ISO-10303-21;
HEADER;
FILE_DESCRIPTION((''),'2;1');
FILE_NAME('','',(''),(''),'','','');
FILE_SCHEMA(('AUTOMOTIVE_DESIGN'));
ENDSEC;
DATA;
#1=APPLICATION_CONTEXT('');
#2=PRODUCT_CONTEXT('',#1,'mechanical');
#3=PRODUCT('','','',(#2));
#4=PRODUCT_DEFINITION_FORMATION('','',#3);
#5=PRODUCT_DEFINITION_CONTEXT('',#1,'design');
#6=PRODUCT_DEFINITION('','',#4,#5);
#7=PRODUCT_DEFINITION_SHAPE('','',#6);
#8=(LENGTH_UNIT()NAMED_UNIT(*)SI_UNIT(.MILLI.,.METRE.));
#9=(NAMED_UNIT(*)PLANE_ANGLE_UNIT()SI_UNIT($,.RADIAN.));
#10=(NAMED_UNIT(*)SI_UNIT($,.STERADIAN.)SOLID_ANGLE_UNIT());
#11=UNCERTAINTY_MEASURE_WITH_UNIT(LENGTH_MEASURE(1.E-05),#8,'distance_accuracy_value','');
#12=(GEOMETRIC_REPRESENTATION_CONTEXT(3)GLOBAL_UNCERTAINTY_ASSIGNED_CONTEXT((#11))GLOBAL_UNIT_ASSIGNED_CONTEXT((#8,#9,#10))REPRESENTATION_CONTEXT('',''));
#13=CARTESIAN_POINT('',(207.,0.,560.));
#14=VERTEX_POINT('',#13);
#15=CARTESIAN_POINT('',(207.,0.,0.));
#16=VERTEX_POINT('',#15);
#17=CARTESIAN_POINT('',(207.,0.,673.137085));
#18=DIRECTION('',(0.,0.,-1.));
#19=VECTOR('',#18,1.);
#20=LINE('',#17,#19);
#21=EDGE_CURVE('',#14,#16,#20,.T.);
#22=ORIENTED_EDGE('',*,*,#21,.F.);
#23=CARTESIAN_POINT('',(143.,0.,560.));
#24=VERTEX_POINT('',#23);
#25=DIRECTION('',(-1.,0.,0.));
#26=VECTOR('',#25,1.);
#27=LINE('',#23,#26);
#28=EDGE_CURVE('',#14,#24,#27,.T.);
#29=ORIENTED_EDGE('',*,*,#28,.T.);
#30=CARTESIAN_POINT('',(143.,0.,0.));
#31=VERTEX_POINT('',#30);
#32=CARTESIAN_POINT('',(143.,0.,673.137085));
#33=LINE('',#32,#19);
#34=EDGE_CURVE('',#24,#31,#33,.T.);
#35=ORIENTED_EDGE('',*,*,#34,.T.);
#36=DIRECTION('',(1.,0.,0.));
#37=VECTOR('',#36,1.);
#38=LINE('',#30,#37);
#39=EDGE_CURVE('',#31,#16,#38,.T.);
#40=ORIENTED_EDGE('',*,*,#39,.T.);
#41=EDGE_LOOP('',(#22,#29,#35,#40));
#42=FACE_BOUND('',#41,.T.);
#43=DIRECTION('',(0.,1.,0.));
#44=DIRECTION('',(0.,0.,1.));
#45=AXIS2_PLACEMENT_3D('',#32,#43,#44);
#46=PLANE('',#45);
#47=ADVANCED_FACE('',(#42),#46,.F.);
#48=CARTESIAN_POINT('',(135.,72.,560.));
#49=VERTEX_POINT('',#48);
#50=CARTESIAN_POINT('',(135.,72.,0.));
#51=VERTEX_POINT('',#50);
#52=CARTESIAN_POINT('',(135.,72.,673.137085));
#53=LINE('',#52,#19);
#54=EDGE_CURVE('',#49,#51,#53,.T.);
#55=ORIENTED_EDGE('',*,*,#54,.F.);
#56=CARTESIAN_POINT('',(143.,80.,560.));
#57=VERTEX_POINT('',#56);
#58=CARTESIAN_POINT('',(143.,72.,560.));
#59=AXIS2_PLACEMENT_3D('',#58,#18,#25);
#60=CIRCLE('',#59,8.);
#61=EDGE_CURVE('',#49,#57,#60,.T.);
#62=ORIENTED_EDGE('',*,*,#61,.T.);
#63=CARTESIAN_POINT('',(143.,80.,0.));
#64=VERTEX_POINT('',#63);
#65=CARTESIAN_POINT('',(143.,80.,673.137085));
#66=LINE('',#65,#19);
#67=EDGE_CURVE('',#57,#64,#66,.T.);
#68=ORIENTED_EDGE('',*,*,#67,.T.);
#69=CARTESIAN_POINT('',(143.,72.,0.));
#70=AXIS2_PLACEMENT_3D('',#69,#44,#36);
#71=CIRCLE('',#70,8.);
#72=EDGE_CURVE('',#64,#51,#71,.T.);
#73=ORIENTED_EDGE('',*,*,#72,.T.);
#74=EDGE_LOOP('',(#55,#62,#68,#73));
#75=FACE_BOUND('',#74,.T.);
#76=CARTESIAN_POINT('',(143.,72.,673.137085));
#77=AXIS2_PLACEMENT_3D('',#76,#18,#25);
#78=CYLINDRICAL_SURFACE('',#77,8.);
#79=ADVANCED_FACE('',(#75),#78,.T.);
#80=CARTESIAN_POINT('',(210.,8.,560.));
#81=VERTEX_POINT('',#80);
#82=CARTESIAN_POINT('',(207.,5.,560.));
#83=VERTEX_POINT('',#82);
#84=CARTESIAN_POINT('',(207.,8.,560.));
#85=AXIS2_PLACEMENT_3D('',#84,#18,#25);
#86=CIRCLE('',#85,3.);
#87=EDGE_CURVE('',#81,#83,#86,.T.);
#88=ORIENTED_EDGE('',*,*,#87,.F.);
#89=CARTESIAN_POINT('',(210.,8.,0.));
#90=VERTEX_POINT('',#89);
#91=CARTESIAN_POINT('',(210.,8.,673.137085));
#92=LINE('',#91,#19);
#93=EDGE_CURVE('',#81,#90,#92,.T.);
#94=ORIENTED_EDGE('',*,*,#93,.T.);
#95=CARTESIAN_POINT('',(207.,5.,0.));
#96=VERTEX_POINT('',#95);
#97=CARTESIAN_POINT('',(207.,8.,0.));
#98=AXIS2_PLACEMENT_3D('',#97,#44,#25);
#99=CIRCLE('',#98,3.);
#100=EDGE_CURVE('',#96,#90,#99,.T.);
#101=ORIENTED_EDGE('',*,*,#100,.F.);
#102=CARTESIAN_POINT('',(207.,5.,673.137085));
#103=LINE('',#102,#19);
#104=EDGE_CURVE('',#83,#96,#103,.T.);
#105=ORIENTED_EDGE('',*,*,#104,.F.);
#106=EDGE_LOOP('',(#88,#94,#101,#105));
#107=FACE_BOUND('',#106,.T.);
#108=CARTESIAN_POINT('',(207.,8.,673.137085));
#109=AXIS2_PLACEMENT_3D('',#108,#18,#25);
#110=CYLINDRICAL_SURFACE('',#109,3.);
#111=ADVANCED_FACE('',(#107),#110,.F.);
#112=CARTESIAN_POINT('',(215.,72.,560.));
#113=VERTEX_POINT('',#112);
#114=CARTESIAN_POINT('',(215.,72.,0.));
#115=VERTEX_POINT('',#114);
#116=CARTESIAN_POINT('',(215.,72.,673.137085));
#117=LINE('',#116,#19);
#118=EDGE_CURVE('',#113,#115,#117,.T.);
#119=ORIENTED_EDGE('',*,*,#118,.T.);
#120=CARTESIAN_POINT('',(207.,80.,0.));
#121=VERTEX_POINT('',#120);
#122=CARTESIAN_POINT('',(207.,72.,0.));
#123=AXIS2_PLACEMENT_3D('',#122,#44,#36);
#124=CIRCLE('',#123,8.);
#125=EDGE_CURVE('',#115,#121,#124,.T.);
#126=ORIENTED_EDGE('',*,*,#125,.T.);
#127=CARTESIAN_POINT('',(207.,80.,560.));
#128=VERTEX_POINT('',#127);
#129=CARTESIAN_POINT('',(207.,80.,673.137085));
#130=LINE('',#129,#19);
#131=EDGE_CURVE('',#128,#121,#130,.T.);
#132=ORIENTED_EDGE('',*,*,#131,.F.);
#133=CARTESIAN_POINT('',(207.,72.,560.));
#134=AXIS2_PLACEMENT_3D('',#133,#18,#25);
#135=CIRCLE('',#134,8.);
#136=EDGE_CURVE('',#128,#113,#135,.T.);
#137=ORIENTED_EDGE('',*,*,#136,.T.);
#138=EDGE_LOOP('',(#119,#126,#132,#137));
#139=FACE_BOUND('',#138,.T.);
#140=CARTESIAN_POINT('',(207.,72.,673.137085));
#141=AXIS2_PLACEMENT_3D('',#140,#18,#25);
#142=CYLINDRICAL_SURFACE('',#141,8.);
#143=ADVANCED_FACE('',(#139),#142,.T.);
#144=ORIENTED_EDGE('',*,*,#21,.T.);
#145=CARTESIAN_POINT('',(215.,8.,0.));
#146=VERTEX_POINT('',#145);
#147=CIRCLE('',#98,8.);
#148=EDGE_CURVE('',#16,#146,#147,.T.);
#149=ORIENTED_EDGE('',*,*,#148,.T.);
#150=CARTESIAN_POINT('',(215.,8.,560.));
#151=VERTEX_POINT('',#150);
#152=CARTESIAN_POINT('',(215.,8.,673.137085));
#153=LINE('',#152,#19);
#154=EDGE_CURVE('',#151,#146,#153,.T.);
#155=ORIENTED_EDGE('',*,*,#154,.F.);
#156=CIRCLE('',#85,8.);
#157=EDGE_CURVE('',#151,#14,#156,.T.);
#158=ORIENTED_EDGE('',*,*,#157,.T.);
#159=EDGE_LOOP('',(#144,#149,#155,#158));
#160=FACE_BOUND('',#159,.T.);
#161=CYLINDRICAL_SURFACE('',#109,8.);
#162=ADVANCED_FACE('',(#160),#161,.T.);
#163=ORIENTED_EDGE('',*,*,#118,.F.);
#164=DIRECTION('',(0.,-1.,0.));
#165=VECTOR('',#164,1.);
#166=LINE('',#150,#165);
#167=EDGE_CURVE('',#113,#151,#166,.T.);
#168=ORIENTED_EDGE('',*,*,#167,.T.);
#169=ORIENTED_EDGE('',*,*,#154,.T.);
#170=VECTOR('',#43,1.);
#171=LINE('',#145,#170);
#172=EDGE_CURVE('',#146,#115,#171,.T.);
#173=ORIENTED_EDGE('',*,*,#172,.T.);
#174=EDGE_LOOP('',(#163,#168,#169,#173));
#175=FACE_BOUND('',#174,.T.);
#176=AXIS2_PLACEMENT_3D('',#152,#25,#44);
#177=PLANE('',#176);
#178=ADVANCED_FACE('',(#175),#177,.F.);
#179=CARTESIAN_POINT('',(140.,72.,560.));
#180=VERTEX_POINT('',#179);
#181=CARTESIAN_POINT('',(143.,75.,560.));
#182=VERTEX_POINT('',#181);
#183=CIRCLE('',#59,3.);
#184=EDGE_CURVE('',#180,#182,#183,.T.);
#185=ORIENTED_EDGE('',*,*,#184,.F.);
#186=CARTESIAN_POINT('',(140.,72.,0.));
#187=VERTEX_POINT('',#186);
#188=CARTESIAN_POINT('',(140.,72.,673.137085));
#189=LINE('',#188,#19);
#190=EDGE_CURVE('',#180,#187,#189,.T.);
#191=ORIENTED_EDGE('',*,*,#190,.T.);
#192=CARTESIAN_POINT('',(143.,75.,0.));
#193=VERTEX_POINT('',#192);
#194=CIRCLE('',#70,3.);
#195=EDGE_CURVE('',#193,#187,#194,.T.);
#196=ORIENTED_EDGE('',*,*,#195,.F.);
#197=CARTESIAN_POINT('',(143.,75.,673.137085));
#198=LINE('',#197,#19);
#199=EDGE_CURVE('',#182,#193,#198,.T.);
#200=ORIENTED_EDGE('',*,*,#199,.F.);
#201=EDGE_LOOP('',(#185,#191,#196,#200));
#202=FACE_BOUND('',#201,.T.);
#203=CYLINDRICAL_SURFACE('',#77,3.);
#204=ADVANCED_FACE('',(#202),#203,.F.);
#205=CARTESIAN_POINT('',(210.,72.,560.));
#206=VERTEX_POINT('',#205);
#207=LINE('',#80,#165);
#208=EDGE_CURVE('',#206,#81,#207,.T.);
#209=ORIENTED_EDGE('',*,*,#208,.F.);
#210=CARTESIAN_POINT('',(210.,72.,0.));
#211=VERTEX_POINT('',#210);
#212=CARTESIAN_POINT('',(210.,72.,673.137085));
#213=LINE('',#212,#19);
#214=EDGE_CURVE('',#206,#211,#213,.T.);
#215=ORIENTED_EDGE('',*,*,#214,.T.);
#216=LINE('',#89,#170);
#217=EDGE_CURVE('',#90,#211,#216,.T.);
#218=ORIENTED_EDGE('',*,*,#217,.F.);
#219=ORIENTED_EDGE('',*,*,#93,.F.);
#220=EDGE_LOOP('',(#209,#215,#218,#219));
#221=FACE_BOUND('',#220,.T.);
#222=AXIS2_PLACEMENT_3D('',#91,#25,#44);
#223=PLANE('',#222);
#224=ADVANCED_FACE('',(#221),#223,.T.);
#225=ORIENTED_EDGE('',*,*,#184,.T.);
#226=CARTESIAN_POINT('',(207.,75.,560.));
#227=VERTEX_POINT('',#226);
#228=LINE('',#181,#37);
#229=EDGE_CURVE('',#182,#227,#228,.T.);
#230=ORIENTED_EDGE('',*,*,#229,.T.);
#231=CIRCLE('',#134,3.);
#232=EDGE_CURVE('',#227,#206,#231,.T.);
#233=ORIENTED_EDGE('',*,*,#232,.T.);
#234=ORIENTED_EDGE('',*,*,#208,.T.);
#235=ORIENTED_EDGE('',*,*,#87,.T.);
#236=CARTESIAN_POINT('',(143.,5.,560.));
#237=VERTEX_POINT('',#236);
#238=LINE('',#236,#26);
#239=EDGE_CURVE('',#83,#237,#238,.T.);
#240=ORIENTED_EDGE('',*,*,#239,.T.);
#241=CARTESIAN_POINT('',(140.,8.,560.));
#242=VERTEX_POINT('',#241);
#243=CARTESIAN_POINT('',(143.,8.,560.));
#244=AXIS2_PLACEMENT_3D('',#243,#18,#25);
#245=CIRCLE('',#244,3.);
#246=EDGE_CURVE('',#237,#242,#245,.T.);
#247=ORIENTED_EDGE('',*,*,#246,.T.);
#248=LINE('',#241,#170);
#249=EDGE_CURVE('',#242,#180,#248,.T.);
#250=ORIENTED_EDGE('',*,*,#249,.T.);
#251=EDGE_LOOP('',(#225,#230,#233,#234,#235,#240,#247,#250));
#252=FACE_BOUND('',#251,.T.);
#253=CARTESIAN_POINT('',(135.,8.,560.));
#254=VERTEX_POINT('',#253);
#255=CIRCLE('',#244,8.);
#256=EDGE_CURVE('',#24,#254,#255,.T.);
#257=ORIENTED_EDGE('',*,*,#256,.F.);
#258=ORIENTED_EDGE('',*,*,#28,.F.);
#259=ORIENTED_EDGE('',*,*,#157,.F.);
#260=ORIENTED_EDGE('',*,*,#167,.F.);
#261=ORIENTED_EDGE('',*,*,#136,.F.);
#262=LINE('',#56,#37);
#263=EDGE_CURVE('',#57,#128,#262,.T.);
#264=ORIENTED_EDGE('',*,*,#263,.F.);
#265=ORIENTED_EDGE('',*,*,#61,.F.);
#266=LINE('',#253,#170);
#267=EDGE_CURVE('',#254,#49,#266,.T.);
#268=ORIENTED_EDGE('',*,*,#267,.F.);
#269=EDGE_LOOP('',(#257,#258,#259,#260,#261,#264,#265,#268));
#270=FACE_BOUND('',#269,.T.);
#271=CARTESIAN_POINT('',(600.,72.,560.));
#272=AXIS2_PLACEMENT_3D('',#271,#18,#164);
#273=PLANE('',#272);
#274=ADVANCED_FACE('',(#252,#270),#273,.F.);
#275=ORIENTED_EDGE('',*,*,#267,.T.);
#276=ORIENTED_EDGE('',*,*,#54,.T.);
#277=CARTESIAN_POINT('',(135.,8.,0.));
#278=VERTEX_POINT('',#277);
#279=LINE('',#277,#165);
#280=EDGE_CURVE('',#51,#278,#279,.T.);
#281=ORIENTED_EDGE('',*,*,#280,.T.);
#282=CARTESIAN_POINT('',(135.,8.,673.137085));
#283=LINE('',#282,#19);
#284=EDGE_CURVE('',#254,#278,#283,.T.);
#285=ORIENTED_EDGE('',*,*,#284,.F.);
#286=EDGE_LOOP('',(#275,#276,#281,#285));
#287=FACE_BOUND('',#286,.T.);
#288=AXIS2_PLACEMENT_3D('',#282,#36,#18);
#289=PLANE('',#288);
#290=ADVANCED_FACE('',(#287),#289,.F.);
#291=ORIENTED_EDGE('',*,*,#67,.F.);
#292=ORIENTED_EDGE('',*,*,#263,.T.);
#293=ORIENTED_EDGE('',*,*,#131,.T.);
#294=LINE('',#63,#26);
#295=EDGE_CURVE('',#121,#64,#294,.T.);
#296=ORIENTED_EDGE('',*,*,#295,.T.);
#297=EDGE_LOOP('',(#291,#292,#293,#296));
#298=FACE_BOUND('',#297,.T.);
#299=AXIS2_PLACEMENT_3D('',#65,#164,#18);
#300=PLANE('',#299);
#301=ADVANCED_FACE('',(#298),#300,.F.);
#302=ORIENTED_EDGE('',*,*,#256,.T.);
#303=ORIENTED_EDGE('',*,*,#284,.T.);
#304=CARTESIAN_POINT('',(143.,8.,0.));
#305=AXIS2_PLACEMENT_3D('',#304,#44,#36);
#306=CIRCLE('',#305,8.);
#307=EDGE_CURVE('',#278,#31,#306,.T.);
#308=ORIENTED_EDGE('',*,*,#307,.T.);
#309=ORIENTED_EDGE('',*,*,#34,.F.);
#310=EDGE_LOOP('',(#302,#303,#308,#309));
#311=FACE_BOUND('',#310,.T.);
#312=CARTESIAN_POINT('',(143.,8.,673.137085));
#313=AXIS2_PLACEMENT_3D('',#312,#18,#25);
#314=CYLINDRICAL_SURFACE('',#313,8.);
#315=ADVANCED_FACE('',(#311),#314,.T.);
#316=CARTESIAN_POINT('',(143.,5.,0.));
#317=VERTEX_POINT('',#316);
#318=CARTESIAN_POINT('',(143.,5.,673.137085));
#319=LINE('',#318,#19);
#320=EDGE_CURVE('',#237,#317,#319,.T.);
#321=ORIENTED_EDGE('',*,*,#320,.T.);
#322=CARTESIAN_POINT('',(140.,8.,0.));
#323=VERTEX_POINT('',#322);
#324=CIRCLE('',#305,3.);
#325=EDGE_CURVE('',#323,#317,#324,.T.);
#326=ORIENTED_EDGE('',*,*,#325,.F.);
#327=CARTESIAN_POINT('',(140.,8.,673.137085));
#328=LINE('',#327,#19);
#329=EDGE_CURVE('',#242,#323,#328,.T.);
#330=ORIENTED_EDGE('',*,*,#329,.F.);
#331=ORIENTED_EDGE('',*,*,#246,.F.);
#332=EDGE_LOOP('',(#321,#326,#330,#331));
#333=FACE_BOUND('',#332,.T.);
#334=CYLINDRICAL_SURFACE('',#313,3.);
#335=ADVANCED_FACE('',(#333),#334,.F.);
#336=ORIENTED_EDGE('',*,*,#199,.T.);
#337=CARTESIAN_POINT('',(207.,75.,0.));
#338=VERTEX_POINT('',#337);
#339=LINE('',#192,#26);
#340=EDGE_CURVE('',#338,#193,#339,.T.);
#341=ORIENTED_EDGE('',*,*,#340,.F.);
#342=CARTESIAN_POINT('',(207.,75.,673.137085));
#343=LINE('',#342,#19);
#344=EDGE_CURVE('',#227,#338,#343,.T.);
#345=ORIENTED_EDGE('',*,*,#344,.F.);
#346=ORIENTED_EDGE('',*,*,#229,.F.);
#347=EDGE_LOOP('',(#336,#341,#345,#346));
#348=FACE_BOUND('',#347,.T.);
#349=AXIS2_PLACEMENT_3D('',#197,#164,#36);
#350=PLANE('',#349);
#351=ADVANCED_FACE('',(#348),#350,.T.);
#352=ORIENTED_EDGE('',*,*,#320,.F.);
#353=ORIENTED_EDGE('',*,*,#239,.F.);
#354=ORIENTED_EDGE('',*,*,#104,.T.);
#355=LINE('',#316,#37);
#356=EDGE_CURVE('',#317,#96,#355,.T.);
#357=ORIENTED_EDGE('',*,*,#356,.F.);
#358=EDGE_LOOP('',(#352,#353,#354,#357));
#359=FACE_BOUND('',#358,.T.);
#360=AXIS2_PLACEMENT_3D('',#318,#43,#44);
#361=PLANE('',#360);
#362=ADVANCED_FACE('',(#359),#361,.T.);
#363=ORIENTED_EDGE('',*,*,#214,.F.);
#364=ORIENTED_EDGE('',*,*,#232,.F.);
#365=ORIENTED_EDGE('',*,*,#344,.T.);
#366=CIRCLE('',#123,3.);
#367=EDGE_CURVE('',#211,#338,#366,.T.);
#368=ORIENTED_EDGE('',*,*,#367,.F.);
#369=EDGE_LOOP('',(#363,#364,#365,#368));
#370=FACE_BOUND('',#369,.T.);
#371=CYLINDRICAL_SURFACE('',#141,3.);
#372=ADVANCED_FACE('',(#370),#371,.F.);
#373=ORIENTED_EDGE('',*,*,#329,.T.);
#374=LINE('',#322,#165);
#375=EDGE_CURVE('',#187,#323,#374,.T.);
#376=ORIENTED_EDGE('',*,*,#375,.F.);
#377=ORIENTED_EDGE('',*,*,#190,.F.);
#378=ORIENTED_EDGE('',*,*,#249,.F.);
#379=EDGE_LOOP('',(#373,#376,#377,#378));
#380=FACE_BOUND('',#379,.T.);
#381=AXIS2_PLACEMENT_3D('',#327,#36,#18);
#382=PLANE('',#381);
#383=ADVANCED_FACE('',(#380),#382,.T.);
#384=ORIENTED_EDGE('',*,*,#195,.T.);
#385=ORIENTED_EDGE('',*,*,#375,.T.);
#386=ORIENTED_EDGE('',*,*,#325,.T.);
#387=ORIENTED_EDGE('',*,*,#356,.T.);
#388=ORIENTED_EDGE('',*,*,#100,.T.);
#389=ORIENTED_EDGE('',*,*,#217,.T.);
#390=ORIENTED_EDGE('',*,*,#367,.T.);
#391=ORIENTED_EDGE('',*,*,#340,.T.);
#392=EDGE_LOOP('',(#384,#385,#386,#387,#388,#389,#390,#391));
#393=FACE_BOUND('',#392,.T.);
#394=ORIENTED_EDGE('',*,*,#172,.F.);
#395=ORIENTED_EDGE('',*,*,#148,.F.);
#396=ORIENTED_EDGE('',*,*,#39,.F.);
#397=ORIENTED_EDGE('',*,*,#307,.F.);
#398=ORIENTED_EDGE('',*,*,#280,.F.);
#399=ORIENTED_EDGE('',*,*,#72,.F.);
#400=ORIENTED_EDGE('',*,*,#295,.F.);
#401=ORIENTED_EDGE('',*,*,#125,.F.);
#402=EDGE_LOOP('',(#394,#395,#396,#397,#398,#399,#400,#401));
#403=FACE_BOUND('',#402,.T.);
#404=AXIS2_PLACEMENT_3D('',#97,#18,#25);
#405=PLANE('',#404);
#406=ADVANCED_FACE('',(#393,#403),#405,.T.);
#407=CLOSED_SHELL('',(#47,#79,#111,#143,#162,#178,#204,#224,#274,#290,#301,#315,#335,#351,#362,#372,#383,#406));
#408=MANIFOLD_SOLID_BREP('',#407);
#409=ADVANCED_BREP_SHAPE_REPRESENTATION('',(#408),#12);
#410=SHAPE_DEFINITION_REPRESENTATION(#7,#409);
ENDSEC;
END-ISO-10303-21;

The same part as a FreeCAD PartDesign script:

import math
import FreeCAD as App
import Part
import Sketcher

V = App.Vector

doc = App.newDocument("Part")
body = doc.addObject("PartDesign::Body", "Body")

# Sketch on XY plane
sketch1 = body.newObject("Sketcher::SketchObject", "Sketch")
sketch1.AttachmentSupport = (doc.getObject("XY_Plane"), [""])
sketch1.MapMode = "FlatFace"
sketch1.addGeometry(Part.LineSegment(V(143, 0, 0), V(207, 0, 0)), False)
sketch1.addGeometry(Part.ArcOfCircle(Part.Circle(V(207, 8, 0), V(0, 0, 1), 8), math.radians(-90), math.radians(0)), False)
sketch1.addGeometry(Part.LineSegment(V(215, 8, 0), V(215, 72, 0)), False)
sketch1.addGeometry(Part.ArcOfCircle(Part.Circle(V(207, 72, 0), V(0, 0, 1), 8), math.radians(0), math.radians(90)), False)
sketch1.addGeometry(Part.LineSegment(V(207, 80, 0), V(143, 80, 0)), False)
sketch1.addGeometry(Part.ArcOfCircle(Part.Circle(V(143, 72, 0), V(0, 0, 1), 8), math.radians(90), math.radians(180)), False)
sketch1.addGeometry(Part.LineSegment(V(135, 72, 0), V(135, 8, 0)), False)
sketch1.addGeometry(Part.ArcOfCircle(Part.Circle(V(143, 8, 0), V(0, 0, 1), 8), math.radians(-180), math.radians(-90)), False)
sketch1.addGeometry(Part.ArcOfCircle(Part.Circle(V(143, 8, 0), V(0, 0, 1), 3), math.radians(180), math.radians(270)), False)
sketch1.addGeometry(Part.LineSegment(V(140, 8, 0), V(140, 72, 0)), False)
sketch1.addGeometry(Part.ArcOfCircle(Part.Circle(V(143, 72, 0), V(0, 0, 1), 3), math.radians(90), math.radians(180)), False)
sketch1.addGeometry(Part.LineSegment(V(143, 75, 0), V(207, 75, 0)), False)
sketch1.addGeometry(Part.ArcOfCircle(Part.Circle(V(207, 72, 0), V(0, 0, 1), 3), math.radians(0), math.radians(90)), False)
sketch1.addGeometry(Part.LineSegment(V(210, 72, 0), V(210, 8, 0)), False)
sketch1.addGeometry(Part.ArcOfCircle(Part.Circle(V(207, 8, 0), V(0, 0, 1), 3), math.radians(-90), math.radians(0)), False)
sketch1.addGeometry(Part.LineSegment(V(207, 5, 0), V(143, 5, 0)), False)
sketch1.addConstraint(Sketcher.Constraint("Tangent", 0, 2, 1, 1))
sketch1.addConstraint(Sketcher.Constraint("Tangent", 1, 2, 2, 1))
sketch1.addConstraint(Sketcher.Constraint("Tangent", 2, 2, 3, 1))
sketch1.addConstraint(Sketcher.Constraint("Tangent", 3, 2, 4, 1))
sketch1.addConstraint(Sketcher.Constraint("Tangent", 4, 2, 5, 1))
sketch1.addConstraint(Sketcher.Constraint("Tangent", 5, 2, 6, 1))
sketch1.addConstraint(Sketcher.Constraint("Tangent", 6, 2, 7, 1))
sketch1.addConstraint(Sketcher.Constraint("Tangent", 7, 2, 0, 1))
sketch1.addConstraint(Sketcher.Constraint("Tangent", 8, 1, 9, 1))
sketch1.addConstraint(Sketcher.Constraint("Tangent", 9, 2, 10, 2))
sketch1.addConstraint(Sketcher.Constraint("Tangent", 10, 1, 11, 1))
sketch1.addConstraint(Sketcher.Constraint("Tangent", 11, 2, 12, 2))
sketch1.addConstraint(Sketcher.Constraint("Tangent", 12, 1, 13, 1))
sketch1.addConstraint(Sketcher.Constraint("Tangent", 13, 2, 14, 2))
sketch1.addConstraint(Sketcher.Constraint("Tangent", 14, 1, 15, 1))
sketch1.addConstraint(Sketcher.Constraint("Tangent", 15, 2, 8, 2))
sketch1.addConstraint(Sketcher.Constraint("Horizontal", 0))
sketch1.addConstraint(Sketcher.Constraint("Vertical", 2))
sketch1.addConstraint(Sketcher.Constraint("Horizontal", 4))
sketch1.addConstraint(Sketcher.Constraint("Vertical", 6))
sketch1.addConstraint(Sketcher.Constraint("Vertical", 9))
sketch1.addConstraint(Sketcher.Constraint("Horizontal", 11))
sketch1.addConstraint(Sketcher.Constraint("Vertical", 13))
sketch1.addConstraint(Sketcher.Constraint("Horizontal", 15))
sketch1.addConstraint(Sketcher.Constraint("Coincident", 8, 3, 7, 3))
sketch1.addConstraint(Sketcher.Constraint("Coincident", 10, 3, 5, 3))
sketch1.addConstraint(Sketcher.Constraint("Coincident", 12, 3, 3, 3))
sketch1.addConstraint(Sketcher.Constraint("Equal", 1, 3))
sketch1.addConstraint(Sketcher.Constraint("Equal", 3, 5))
sketch1.addConstraint(Sketcher.Constraint("Equal", 5, 7))
sketch1.addConstraint(Sketcher.Constraint("Equal", 12, 14))
sketch1.addConstraint(Sketcher.Constraint("PointOnObject", 0, 2, -1))
sketch1.addConstraint(Sketcher.Constraint("Equal", 15, 2))
sketch1.addConstraint(Sketcher.Constraint("Radius", 1, 8.0))
sketch1.addConstraint(Sketcher.Constraint("Radius", 8, 3.0))
sketch1.addConstraint(Sketcher.Constraint("DistanceX", 0, 1, 0, 2, 64.0))
sketch1.addConstraint(Sketcher.Constraint("DistanceX", -1, 1, 1, 3, 207.0))
pad1 = body.newObject("PartDesign::Pad", "Pad")
pad1.Profile = sketch1
pad1.Length = 560

doc.recompute()
